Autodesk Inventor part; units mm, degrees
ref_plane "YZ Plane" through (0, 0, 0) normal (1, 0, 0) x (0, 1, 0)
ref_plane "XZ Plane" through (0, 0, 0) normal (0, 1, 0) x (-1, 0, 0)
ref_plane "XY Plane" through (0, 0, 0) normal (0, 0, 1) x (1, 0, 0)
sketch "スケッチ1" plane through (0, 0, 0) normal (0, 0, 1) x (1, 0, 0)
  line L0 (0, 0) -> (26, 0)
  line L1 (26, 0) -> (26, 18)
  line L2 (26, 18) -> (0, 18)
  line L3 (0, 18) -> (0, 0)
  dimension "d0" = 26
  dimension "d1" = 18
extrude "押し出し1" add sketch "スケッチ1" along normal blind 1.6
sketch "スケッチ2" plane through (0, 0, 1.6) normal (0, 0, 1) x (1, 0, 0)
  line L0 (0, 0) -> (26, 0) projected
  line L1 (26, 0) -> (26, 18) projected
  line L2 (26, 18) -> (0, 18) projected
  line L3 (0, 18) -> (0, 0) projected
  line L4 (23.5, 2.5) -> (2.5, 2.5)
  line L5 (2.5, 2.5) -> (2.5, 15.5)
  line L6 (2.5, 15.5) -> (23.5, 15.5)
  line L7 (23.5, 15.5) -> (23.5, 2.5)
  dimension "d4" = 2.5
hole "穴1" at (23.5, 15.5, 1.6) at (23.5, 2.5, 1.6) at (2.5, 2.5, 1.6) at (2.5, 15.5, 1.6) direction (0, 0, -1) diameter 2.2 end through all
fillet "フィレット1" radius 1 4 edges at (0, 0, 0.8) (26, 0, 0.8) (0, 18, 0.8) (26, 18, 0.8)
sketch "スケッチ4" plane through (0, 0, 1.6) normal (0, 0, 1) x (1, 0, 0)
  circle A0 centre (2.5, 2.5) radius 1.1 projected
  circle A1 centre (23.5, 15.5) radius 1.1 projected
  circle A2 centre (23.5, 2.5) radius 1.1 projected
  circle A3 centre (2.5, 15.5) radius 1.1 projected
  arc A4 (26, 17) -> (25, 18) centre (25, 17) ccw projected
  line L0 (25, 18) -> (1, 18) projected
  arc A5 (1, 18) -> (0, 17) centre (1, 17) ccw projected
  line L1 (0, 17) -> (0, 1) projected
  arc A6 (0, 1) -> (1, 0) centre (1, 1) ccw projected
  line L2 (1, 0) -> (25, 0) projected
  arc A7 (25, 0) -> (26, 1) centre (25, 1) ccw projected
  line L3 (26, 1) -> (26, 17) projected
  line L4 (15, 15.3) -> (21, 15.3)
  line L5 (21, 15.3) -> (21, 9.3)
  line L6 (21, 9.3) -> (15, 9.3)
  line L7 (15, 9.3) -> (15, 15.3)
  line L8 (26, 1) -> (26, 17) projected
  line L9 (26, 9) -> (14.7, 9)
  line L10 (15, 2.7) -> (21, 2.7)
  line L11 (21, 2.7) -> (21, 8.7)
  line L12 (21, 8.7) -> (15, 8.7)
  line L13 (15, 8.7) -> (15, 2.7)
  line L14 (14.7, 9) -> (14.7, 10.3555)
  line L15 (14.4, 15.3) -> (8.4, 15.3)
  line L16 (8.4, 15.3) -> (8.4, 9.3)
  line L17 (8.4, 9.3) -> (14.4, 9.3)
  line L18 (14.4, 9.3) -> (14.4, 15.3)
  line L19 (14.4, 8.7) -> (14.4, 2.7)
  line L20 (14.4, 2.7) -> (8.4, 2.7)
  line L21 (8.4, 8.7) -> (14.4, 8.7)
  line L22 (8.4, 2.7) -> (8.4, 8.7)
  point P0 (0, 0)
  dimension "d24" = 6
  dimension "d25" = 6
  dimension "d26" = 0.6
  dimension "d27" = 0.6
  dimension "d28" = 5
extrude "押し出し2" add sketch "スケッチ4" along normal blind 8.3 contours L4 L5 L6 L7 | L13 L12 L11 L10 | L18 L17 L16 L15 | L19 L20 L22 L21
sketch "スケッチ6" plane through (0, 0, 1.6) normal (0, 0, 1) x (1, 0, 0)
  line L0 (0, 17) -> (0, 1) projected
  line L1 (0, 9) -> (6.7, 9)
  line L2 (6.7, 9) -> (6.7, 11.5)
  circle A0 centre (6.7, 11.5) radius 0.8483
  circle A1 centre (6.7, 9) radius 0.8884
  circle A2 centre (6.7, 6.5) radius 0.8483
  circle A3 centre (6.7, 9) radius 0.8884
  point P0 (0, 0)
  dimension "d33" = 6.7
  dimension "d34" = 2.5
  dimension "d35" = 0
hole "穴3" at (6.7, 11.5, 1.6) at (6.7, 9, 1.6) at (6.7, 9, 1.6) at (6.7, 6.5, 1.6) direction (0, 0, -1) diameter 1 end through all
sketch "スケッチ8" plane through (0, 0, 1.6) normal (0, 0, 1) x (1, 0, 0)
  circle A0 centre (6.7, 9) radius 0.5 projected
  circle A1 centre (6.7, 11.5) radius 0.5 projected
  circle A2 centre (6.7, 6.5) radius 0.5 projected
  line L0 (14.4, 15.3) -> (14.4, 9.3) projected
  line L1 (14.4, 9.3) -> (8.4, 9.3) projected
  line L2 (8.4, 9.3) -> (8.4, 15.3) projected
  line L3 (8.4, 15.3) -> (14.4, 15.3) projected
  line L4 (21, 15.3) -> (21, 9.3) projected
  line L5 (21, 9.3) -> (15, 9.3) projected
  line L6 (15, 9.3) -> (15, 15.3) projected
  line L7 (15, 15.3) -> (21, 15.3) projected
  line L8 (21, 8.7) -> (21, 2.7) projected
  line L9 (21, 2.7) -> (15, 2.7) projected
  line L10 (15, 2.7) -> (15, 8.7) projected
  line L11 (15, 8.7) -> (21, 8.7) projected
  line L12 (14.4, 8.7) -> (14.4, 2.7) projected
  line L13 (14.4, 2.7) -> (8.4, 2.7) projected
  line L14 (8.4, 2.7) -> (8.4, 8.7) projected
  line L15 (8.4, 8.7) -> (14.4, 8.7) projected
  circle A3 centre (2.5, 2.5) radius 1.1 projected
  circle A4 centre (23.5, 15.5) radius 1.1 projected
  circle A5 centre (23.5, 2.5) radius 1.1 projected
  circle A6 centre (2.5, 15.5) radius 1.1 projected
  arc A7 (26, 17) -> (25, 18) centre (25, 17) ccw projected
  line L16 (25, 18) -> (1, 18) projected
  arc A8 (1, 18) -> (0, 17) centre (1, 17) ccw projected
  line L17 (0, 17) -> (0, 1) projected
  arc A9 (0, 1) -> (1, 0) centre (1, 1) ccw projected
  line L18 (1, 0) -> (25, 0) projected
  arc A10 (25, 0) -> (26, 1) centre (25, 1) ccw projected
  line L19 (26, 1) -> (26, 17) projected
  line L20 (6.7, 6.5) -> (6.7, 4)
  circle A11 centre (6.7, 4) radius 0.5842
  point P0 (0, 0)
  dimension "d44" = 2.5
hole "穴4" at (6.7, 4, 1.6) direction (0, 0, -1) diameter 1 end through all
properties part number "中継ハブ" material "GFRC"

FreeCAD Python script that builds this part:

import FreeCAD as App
import Part
import Sketcher


def edges_at(feature, points):
    """Names of the edges that pass closest to the given points."""
    edges = feature.Shape.Edges
    near = lambda p: min(range(len(edges)), key=lambda i: edges[i].distToShape(Part.Vertex(*p))[0])
    return sorted({f"Edge{near(p) + 1}" for p in points})


def add_polygon(sketch, points):
    """Adds a closed chain of lines whose ends are joined by coincident constraints."""
    first, n = sketch.GeometryCount, len(points)
    for a, b in zip(points, points[1:] + points[:1]):
        sketch.addGeometry(Part.LineSegment(App.Vector(*a, 0), App.Vector(*b, 0)), False)
    for i in range(n):
        sketch.addConstraint(Sketcher.Constraint("Coincident", first + i, 2, first + (i + 1) % n, 1))

doc = App.newDocument("Part")
body = doc.addObject("PartDesign::Body", "Body")

# Sketch on XY plane
sketch1 = body.newObject("Sketcher::SketchObject", "Sketch")
sketch1.AttachmentSupport = (doc.getObject("XY_Plane"), [""])
sketch1.MapMode = "FlatFace"
add_polygon(sketch1, [(0, 18), (0, 0), (26, 0), (26, 18)])  # lines 0-3
sketch1.addConstraint([
    Sketcher.Constraint("Vertical", 0),
    Sketcher.Constraint("Horizontal", 1),
    Sketcher.Constraint("Vertical", 2),
    Sketcher.Constraint("Horizontal", 3),
    Sketcher.Constraint("Coincident", 0, 2, -1, 1),
    Sketcher.Constraint("DistanceX", 1, 1, 1, 2, 26.0),
    Sketcher.Constraint("DistanceY", 0, 2, 0, 1, 18.0),
])
pad1 = body.newObject("PartDesign::Pad", "Pad")
pad1.Profile = sketch1
pad1.Length = 1.6

# Sketch on XY plane
sketch2 = body.newObject("Sketcher::SketchObject", "Sketch001")
sketch2.AttachmentSupport = (doc.getObject("XY_Plane"), [""])
sketch2.MapMode = "FlatFace"
sketch2.AttachmentOffset = App.Placement(App.Vector(0, 0, 1.6), App.Rotation())
sketch2.addGeometry([
    Part.Circle(App.Vector(23.5, 15.5, 0), App.Vector(0, 0, 1), 1.1),
    Part.Circle(App.Vector(23.5, 2.5, 0), App.Vector(0, 0, 1), 1.1),
    Part.Circle(App.Vector(2.5, 2.5, 0), App.Vector(0, 0, 1), 1.1),
    Part.Circle(App.Vector(2.5, 15.5, 0), App.Vector(0, 0, 1), 1.1),
], False)
sketch2.addConstraint([
    Sketcher.Constraint("Equal", 0, 1),
    Sketcher.Constraint("Equal", 1, 2),
    Sketcher.Constraint("Equal", 2, 3),
    Sketcher.Constraint("Horizontal", 1, 3, 2, 3),
    Sketcher.Constraint("Horizontal", 0, 3, 3, 3),
    Sketcher.Constraint("Vertical", 0, 3, 1, 3),
    Sketcher.Constraint("Vertical", 2, 3, 3, 3),
    Sketcher.Constraint("Diameter", 0, 2.2),
    Sketcher.Constraint("DistanceY", 1, 3, 0, 3, 13.0),
    Sketcher.Constraint("DistanceX", 2, 3, 1, 3, 21.0),
    Sketcher.Constraint("DistanceX", -1, 1, 0, 3, 23.5),
    Sketcher.Constraint("DistanceY", -1, 1, 0, 3, 15.5),
])
doc.recompute()
hole = body.newObject("PartDesign::Hole", "Hole")
hole.Profile = sketch2
hole.ThreadType = "None"
hole.Diameter = 2.2
hole.DepthType = "ThroughAll"
doc.recompute()

fillet = body.newObject("PartDesign::Fillet", "Fillet")
fillet.Base = (hole, edges_at(hole, [
    (0, 0, 0.8),
    (26, 0, 0.8),
    (0, 18, 0.8),
    (26, 18, 0.8),
]))
fillet.Radius = 1

# Sketch on XY plane
sketch3 = body.newObject("Sketcher::SketchObject", "Sketch002")
sketch3.AttachmentSupport = (doc.getObject("XY_Plane"), [""])
sketch3.MapMode = "FlatFace"
sketch3.AttachmentOffset = App.Placement(App.Vector(0, 0, 1.6), App.Rotation())
add_polygon(sketch3, [(21, 15), (15, 15), (15, 9), (21, 9)])  # lines 0-3
add_polygon(sketch3, [(15, 9), (15, 3), (21, 3), (21, 9)])  # lines 4-7
add_polygon(sketch3, [(14, 9), (14, 15), (8, 15), (8, 9)])  # lines 8-11
add_polygon(sketch3, [(14, 3), (14, 9), (8, 9), (8, 3)])  # lines 12-15
sketch3.addConstraint([
    Sketcher.Constraint("Horizontal", 0),
    Sketcher.Constraint("Vertical", 1),
    Sketcher.Constraint("Horizontal", 2),
    Sketcher.Constraint("Vertical", 3),
    Sketcher.Constraint("Vertical", 4),
    Sketcher.Constraint("Horizontal", 5),
    Sketcher.Constraint("Vertical", 6),
    Sketcher.Constraint("Horizontal", 7),
    Sketcher.Constraint("Vertical", 8),
    Sketcher.Constraint("Horizontal", 9),
    Sketcher.Constraint("Vertical", 10),
    Sketcher.Constraint("Horizontal", 11),
    Sketcher.Constraint("Vertical", 12),
    Sketcher.Constraint("Horizontal", 13),
    Sketcher.Constraint("Vertical", 14),
    Sketcher.Constraint("Horizontal", 15),
    Sketcher.Constraint("Horizontal", 3, 2, 8, 2),
    Sketcher.Constraint("Horizontal", 2, 2, 10, 2),
    Sketcher.Constraint("Horizontal", 7, 2, 12, 2),
    Sketcher.Constraint("Horizontal", 5, 2, 14, 2),
    Sketcher.Constraint("Vertical", 1, 2, 4, 2),
    Sketcher.Constraint("Vertical", 3, 2, 5, 2),
    Sketcher.Constraint("Vertical", 11, 2, 12, 2),
    Sketcher.Constraint("Vertical", 10, 2, 13, 2),
    Sketcher.Constraint("Equal", 7, 9),
    Sketcher.Constraint("Equal", 15, 1),
    Sketcher.Constraint("Equal", 3, 4),
    Sketcher.Constraint("DistanceX", 0, 2, 0, 1, 6.0),
    Sketcher.Constraint("DistanceY", 6, 2, 2, 2, 0.6),
    Sketcher.Constraint("DistanceX", 8, 2, 0, 2, 0.6),
    Sketcher.Constraint("DistanceX", -1, 1, 0, 2, 15.0),
    Sketcher.Constraint("DistanceY", -1, 1, 0, 2, 15.3),
])
pad2 = body.newObject("PartDesign::Pad", "Pad001")
pad2.Profile = sketch3
pad2.Length = 8.3

# Sketch on XY plane
sketch4 = body.newObject("Sketcher::SketchObject", "Sketch003")
sketch4.AttachmentSupport = (doc.getObject("XY_Plane"), [""])
sketch4.MapMode = "FlatFace"
sketch4.AttachmentOffset = App.Placement(App.Vector(0, 0, 1.6), App.Rotation())
sketch4.addGeometry([
    Part.Circle(App.Vector(6.7, 11.5, 0), App.Vector(0, 0, 1), 0.5),
    Part.Circle(App.Vector(6.7, 9, 0), App.Vector(0, 0, 1), 0.5),
    Part.Circle(App.Vector(6.7, 9, 0), App.Vector(0, 0, 1), 0.5),
    Part.Circle(App.Vector(6.7, 6.5, 0), App.Vector(0, 0, 1), 0.5),
], False)
sketch4.addConstraint([
    Sketcher.Constraint("Coincident", 2, 3, 1, 3),
    Sketcher.Constraint("Equal", 0, 1),
    Sketcher.Constraint("Equal", 1, 2),
    Sketcher.Constraint("Equal", 2, 3),
    Sketcher.Constraint("Vertical", 0, 3, 1, 3),
    Sketcher.Constraint("Vertical", 2, 3, 3, 3),
    Sketcher.Constraint("Diameter", 0, 1.0),
    Sketcher.Constraint("DistanceY", -1, 1, 1, 3, 9.0),
    Sketcher.Constraint("DistanceY", 3, 3, 0, 3, 5.0),
    Sketcher.Constraint("DistanceX", -1, 1, 0, 3, 6.7),
    Sketcher.Constraint("DistanceY", -1, 1, 0, 3, 11.5),
])
doc.recompute()
hole2 = body.newObject("PartDesign::Hole", "Hole001")
hole2.Profile = sketch4
hole2.ThreadType = "None"
hole2.Diameter = 1
hole2.DepthType = "ThroughAll"

# Sketch on XY plane
sketch5 = body.newObject("Sketcher::SketchObject", "Sketch004")
sketch5.AttachmentSupport = (doc.getObject("XY_Plane"), [""])
sketch5.MapMode = "FlatFace"
sketch5.AttachmentOffset = App.Placement(App.Vector(0, 0, 1.6), App.Rotation())
sketch5.addGeometry(Part.Circle(App.Vector(6.7, 4, 0), App.Vector(0, 0, 1), 0.5), False)
sketch5.addConstraint([
    Sketcher.Constraint("Diameter", 0, 1.0),
    Sketcher.Constraint("DistanceY", -1, 1, 0, 3, 4.0),
    Sketcher.Constraint("DistanceX", -1, 1, 0, 3, 6.7),
])
doc.recompute()
hole3 = body.newObject("PartDesign::Hole", "Hole002")
hole3.Profile = sketch5
hole3.ThreadType = "None"
hole3.Diameter = 1
hole3.DepthType = "ThroughAll"

doc.recompute()
